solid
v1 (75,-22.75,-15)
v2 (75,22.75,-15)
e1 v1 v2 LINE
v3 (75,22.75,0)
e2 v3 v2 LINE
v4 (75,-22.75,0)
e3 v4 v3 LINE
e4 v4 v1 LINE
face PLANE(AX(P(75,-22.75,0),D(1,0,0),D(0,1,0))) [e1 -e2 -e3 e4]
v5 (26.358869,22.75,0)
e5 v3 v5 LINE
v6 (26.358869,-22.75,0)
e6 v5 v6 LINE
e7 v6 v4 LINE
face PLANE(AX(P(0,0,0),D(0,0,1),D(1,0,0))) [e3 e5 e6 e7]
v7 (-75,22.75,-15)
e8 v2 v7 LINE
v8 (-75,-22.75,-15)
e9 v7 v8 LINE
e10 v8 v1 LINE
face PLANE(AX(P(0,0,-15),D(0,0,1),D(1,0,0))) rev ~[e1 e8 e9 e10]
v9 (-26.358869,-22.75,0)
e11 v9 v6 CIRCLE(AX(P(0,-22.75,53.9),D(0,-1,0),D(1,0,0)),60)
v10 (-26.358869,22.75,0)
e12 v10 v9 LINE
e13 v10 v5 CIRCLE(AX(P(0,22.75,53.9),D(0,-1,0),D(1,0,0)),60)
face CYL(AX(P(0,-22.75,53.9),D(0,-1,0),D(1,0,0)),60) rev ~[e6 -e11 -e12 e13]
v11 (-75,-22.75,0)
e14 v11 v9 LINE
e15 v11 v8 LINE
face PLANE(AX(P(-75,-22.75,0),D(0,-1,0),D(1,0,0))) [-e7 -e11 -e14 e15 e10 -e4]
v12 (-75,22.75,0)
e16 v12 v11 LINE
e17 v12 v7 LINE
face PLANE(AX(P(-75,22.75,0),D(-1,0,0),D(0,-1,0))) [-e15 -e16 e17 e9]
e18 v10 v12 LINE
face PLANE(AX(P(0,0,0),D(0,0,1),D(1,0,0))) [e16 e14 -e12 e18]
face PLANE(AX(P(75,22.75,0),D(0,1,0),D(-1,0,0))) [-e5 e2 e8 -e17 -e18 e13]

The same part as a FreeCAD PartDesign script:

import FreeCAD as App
import Part
import Sketcher

V = App.Vector
Q = App.Units.Quantity

doc = App.newDocument("Part")
body = doc.addObject("PartDesign::Body", "Body")

sketch1 = body.newObject("Sketcher::SketchObject", "Sketch")
sketch1.AttachmentSupport = (doc.getObject("XY_Plane"), [""])
sketch1.MapMode = "FlatFace"
sketch1.addGeometry([
    Part.LineSegment(V(-75, 23, 0), V(-75, -23, 0)),
    Part.LineSegment(V(-75, -23, 0), V(75, -23, 0)),
    Part.LineSegment(V(75, -23, 0), V(75, 23, 0)),
    Part.LineSegment(V(75, 23, 0), V(-75, 23, 0)),
], False)
sketch1.addConstraint([
    Sketcher.Constraint("Coincident", 0, 2, 1, 1),
    Sketcher.Constraint("Coincident", 1, 2, 2, 1),
    Sketcher.Constraint("Coincident", 2, 2, 3, 1),
    Sketcher.Constraint("Coincident", 3, 2, 0, 1),
    Sketcher.Constraint("Vertical", 0),
    Sketcher.Constraint("Horizontal", 1),
    Sketcher.Constraint("Vertical", 2),
    Sketcher.Constraint("Horizontal", 3),
    Sketcher.Constraint("Symmetric", 0, 2, 2, 2, -1, 1),
    Sketcher.Constraint("DistanceX", 1, 1, 1, 2, Q("150 mm")),
    Sketcher.Constraint("DistanceY", 0, 2, 0, 1, Q("45.5 mm")),
])
pad1 = body.newObject("PartDesign::Pad", "Pad")
pad1.Profile = sketch1
pad1.Length = 15
pad1.Reversed = True

sketch2 = body.newObject("Sketcher::SketchObject", "Sketch001")
sketch2.AttachmentSupport = (doc.getObject("XZ_Plane"), [""])
sketch2.MapMode = "FlatFace"
sketch2.AttachmentOffset = App.Placement(V(0, 0, 22.75), App.Rotation())
sketch2.addGeometry(Part.Circle(V(0, 54, 0), V(0, 0, 1), 60), False)
sketch2.addConstraint([
    Sketcher.Constraint("PointOnObject", 0, 3, -2),
    Sketcher.Constraint("Diameter", 0, Q("120 mm")),
    Sketcher.Constraint("DistanceY", -1, 1, 0, 3, Q("53.9 mm")),
])
pocket1 = body.newObject("PartDesign::Pocket", "Pocket")
pocket1.Profile = sketch2
pocket1.Length = 46

doc.recompute()
